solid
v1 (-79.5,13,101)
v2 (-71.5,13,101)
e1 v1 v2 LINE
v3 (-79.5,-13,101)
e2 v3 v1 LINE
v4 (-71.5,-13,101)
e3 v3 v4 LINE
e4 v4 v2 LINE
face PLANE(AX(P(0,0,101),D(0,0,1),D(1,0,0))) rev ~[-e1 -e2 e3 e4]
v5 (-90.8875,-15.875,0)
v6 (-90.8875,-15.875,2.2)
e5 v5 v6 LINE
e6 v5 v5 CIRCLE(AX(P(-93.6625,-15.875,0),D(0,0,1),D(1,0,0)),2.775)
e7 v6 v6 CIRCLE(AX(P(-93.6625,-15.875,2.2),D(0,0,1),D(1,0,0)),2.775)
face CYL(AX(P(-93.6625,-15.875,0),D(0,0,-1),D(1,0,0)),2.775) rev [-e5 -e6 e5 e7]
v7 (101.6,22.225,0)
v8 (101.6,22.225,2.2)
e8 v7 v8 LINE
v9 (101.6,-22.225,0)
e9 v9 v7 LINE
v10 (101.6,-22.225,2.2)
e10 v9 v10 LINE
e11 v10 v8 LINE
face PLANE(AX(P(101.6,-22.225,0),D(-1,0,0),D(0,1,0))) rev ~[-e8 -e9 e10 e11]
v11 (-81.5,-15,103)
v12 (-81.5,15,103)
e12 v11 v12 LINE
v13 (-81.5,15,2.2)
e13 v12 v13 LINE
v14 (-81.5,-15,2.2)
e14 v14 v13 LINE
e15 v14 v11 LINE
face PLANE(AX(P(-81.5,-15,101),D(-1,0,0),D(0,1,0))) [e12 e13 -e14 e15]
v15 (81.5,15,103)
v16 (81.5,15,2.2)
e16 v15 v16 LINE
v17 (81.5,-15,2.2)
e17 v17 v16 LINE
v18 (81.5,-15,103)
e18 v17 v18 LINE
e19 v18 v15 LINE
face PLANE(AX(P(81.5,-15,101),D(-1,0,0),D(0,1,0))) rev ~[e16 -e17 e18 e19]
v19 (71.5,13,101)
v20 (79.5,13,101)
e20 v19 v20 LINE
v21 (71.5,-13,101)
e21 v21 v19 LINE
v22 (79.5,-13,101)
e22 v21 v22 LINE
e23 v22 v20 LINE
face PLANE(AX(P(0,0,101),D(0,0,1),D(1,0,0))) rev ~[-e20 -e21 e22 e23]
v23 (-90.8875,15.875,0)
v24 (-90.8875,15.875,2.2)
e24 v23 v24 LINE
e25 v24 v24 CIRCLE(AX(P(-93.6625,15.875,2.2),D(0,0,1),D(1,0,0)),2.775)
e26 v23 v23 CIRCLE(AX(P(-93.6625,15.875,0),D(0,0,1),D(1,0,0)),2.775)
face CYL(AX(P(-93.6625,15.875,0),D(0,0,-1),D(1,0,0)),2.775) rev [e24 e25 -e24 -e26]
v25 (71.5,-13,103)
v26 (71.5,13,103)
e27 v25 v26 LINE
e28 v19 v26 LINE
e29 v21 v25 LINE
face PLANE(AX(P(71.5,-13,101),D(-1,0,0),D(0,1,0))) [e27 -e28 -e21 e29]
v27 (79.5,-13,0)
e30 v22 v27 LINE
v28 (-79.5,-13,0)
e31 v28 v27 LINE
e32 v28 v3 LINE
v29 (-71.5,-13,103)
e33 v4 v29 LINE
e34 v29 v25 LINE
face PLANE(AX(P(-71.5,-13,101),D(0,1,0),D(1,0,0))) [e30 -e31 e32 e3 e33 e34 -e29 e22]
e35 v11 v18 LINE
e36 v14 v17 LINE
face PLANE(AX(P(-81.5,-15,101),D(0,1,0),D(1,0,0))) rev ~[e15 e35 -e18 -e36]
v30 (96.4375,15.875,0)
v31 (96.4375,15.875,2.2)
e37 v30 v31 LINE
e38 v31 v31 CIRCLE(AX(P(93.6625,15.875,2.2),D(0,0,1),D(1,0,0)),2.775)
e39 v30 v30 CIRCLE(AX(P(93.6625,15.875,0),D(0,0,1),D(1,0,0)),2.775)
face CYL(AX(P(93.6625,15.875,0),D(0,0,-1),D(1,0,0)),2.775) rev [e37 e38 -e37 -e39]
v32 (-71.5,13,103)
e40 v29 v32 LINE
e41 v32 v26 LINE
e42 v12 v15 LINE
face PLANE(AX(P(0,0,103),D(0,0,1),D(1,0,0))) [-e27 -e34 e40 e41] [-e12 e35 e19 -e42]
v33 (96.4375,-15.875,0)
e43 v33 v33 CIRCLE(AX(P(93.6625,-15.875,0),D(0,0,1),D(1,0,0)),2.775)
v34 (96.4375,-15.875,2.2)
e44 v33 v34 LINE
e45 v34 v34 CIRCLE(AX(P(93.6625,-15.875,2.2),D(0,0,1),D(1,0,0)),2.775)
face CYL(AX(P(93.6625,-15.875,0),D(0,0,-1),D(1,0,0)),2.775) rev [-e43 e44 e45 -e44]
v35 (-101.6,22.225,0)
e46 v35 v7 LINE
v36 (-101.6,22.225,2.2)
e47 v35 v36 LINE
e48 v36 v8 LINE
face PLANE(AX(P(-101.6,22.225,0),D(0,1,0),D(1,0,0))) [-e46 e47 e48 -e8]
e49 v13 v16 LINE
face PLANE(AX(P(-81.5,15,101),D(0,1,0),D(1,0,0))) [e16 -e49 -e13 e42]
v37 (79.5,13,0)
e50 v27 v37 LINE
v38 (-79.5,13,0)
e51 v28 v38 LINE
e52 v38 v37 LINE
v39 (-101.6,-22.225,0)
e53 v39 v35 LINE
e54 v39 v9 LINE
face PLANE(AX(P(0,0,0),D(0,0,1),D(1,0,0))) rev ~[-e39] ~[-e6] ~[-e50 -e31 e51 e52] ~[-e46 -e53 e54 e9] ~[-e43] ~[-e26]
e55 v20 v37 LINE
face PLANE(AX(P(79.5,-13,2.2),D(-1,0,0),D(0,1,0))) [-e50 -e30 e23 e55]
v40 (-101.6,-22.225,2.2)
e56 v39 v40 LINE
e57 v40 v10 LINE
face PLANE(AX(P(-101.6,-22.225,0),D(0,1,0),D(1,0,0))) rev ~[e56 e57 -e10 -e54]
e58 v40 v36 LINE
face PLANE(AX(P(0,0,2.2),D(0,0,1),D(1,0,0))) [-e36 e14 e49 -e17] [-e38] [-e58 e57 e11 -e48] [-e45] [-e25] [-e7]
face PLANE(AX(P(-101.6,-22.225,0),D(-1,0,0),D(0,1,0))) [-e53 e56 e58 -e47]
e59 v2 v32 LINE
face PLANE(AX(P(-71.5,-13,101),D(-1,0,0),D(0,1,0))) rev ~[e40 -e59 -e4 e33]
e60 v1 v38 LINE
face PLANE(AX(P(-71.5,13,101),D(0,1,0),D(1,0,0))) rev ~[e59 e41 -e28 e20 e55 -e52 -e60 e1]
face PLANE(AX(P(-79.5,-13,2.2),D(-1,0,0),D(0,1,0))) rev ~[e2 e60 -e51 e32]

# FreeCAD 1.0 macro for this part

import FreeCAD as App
import Part
import Sketcher

V = App.Vector
Q = App.Units.Quantity

doc = App.newDocument("Part")
body = doc.addObject("PartDesign::Body", "Body")

sketch1 = doc.addObject("Sketcher::SketchObject", "Sketch")
body.addObject(sketch1)
sketch1.AttachmentSupport = (doc.XY_Plane, [""])
sketch1.MapMode = "FlatFace"
sketch1.addGeometry([
    Part.LineSegment(V(-101.6, 22.2, 0), V(-101.6, -22.2, 0)),
    Part.LineSegment(V(-101.6, -22.2, 0), V(101.6, -22.2, 0)),
    Part.LineSegment(V(101.6, -22.2, 0), V(101.6, 22.2, 0)),
    Part.LineSegment(V(101.6, 22.2, 0), V(-101.6, 22.2, 0)),
    Part.Circle(V(-93.7, -15.9, 0), V(0, 0, 1), 2.8),
    Part.Circle(V(93.7, -15.9, 0), V(0, 0, 1), 2.8),
    Part.LineSegment(V(79.5, -13, 0), V(-79.5, -13, 0)),
    Part.LineSegment(V(-79.5, -13, 0), V(-79.5, 13, 0)),
    Part.LineSegment(V(-79.5, 13, 0), V(79.5, 13, 0)),
    Part.LineSegment(V(79.5, 13, 0), V(79.5, -13, 0)),
    Part.Circle(V(-93.7, 15.9, 0), V(0, 0, 1), 2.8),
    Part.Circle(V(93.7, 15.9, 0), V(0, 0, 1), 2.8),
], False)
sketch1.addConstraint([
    Sketcher.Constraint("Coincident", 0, 2, 1, 1),
    Sketcher.Constraint("Coincident", 1, 2, 2, 1),
    Sketcher.Constraint("Coincident", 2, 2, 3, 1),
    Sketcher.Constraint("Coincident", 3, 2, 0, 1),
    Sketcher.Constraint("Coincident", 6, 2, 7, 1),
    Sketcher.Constraint("Coincident", 7, 2, 8, 1),
    Sketcher.Constraint("Coincident", 8, 2, 9, 1),
    Sketcher.Constraint("Coincident", 9, 2, 6, 1),
    Sketcher.Constraint("Vertical", 0),
    Sketcher.Constraint("Horizontal", 1),
    Sketcher.Constraint("Vertical", 2),
    Sketcher.Constraint("Horizontal", 3),
    Sketcher.Constraint("Horizontal", 6),
    Sketcher.Constraint("Vertical", 7),
    Sketcher.Constraint("Horizontal", 8),
    Sketcher.Constraint("Vertical", 9),
    Sketcher.Constraint("Equal", 4, 5),
    Sketcher.Constraint("Equal", 5, 10),
    Sketcher.Constraint("Equal", 10, 11),
    Sketcher.Constraint("Symmetric", 5, 3, 10, 3, -1, 1),
    Sketcher.Constraint("Symmetric", 4, 3, 11, 3, -1, 1),
    Sketcher.Constraint("Symmetric", 0, 2, 2, 2, -1, 1),
    Sketcher.Constraint("Symmetric", 6, 2, 8, 2, -1, 1),
    Sketcher.Constraint("Symmetric", 4, 3, 5, 3, -2),
    Sketcher.Constraint("Diameter", 4, Q("5.55 mm")),
    Sketcher.Constraint("DistanceX", 6, 2, 6, 1, Q("159 mm")),
    Sketcher.Constraint("DistanceY", 7, 1, 7, 2, Q("26 mm")),
    Sketcher.Constraint("DistanceX", 1, 1, 1, 2, Q("203.2 mm")),
    Sketcher.Constraint("DistanceY", 0, 2, 0, 1, Q("44.45 mm")),
    Sketcher.Constraint("DistanceY", 0, 2, 10, 3, Q("38.1 mm")),
    Sketcher.Constraint("DistanceX", 4, 3, 5, 3, Q("187.325 mm")),
])
pad1 = doc.addObject("PartDesign::Pad", "Pad")
body.addObject(pad1)
pad1.Profile = sketch1
pad1.Length = 2.2

sketch2 = doc.addObject("Sketcher::SketchObject", "Sketch001")
body.addObject(sketch2)
sketch2.AttachmentSupport = (doc.XY_Plane, [""])
sketch2.MapMode = "FlatFace"
sketch2.AttachmentOffset = App.Placement(V(0, 0, 2.2), App.Rotation())
sketch2.addGeometry([
    Part.LineSegment(V(-82, 15, 0), V(-82, -15, 0)),
    Part.LineSegment(V(-82, -15, 0), V(82, -15, 0)),
    Part.LineSegment(V(82, -15, 0), V(82, 15, 0)),
    Part.LineSegment(V(82, 15, 0), V(-82, 15, 0)),
    Part.LineSegment(V(80, -13, 0), V(-80, -13, 0)),
    Part.LineSegment(V(-80, -13, 0), V(-80, 13, 0)),
    Part.LineSegment(V(-80, 13, 0), V(80, 13, 0)),
    Part.LineSegment(V(80, 13, 0), V(80, -13, 0)),
], False)
sketch2.addConstraint([
    Sketcher.Constraint("Coincident", 0, 2, 1, 1),
    Sketcher.Constraint("Coincident", 1, 2, 2, 1),
    Sketcher.Constraint("Coincident", 2, 2, 3, 1),
    Sketcher.Constraint("Coincident", 3, 2, 0, 1),
    Sketcher.Constraint("Coincident", 4, 2, 5, 1),
    Sketcher.Constraint("Coincident", 5, 2, 6, 1),
    Sketcher.Constraint("Coincident", 6, 2, 7, 1),
    Sketcher.Constraint("Coincident", 7, 2, 4, 1),
    Sketcher.Constraint("Vertical", 0),
    Sketcher.Constraint("Horizontal", 1),
    Sketcher.Constraint("Vertical", 2),
    Sketcher.Constraint("Horizontal", 3),
    Sketcher.Constraint("Horizontal", 4),
    Sketcher.Constraint("Vertical", 5),
    Sketcher.Constraint("Horizontal", 6),
    Sketcher.Constraint("Vertical", 7),
    Sketcher.Constraint("Symmetric", 0, 2, 2, 2, -1, 1),
    Sketcher.Constraint("Symmetric", 4, 2, 6, 2, -1, 1),
    Sketcher.Constraint("DistanceX", 1, 1, 1, 2, Q("163 mm")),
    Sketcher.Constraint("DistanceX", 4, 2, 4, 1, Q("159 mm")),
    Sketcher.Constraint("DistanceY", 0, 2, 0, 1, Q("30 mm")),
    Sketcher.Constraint("DistanceY", 5, 1, 5, 2, Q("26 mm")),
])
pad2 = doc.addObject("PartDesign::Pad", "Pad001")
body.addObject(pad2)
pad2.Profile = sketch2
pad2.Length = 98.8

sketch3 = doc.addObject("Sketcher::SketchObject", "Sketch002")
body.addObject(sketch3)
sketch3.AttachmentSupport = (doc.XY_Plane, [""])
sketch3.MapMode = "FlatFace"
sketch3.AttachmentOffset = App.Placement(V(0, 0, 101), App.Rotation())
sketch3.addGeometry([
    Part.LineSegment(V(-82, 15, 0), V(-82, -15, 0)),
    Part.LineSegment(V(-82, -15, 0), V(82, -15, 0)),
    Part.LineSegment(V(82, -15, 0), V(82, 15, 0)),
    Part.LineSegment(V(82, 15, 0), V(-82, 15, 0)),
    Part.LineSegment(V(72, -13, 0), V(-72, -13, 0)),
    Part.LineSegment(V(-72, -13, 0), V(-72, 13, 0)),
    Part.LineSegment(V(-72, 13, 0), V(72, 13, 0)),
    Part.LineSegment(V(72, 13, 0), V(72, -13, 0)),
], False)
sketch3.addConstraint([
    Sketcher.Constraint("Coincident", 0, 2, 1, 1),
    Sketcher.Constraint("Coincident", 1, 2, 2, 1),
    Sketcher.Constraint("Coincident", 2, 2, 3, 1),
    Sketcher.Constraint("Coincident", 3, 2, 0, 1),
    Sketcher.Constraint("Coincident", 4, 2, 5, 1),
    Sketcher.Constraint("Coincident", 5, 2, 6, 1),
    Sketcher.Constraint("Coincident", 6, 2, 7, 1),
    Sketcher.Constraint("Coincident", 7, 2, 4, 1),
    Sketcher.Constraint("Vertical", 0),
    Sketcher.Constraint("Horizontal", 1),
    Sketcher.Constraint("Vertical", 2),
    Sketcher.Constraint("Horizontal", 3),
    Sketcher.Constraint("Horizontal", 4),
    Sketcher.Constraint("Vertical", 5),
    Sketcher.Constraint("Horizontal", 6),
    Sketcher.Constraint("Vertical", 7),
    Sketcher.Constraint("Symmetric", 0, 2, 2, 2, -1, 1),
    Sketcher.Constraint("Symmetric", 4, 2, 6, 2, -1, 1),
    Sketcher.Constraint("DistanceX", 1, 1, 1, 2, Q("163 mm")),
    Sketcher.Constraint("DistanceX", 4, 2, 4, 1, Q("143 mm")),
    Sketcher.Constraint("DistanceY", 0, 2, 0, 1, Q("30 mm")),
    Sketcher.Constraint("DistanceY", 5, 1, 5, 2, Q("26 mm")),
])
pad3 = doc.addObject("PartDesign::Pad", "Pad002")
body.addObject(pad3)
pad3.Profile = sketch3
pad3.Length = 2

doc.recompute()
